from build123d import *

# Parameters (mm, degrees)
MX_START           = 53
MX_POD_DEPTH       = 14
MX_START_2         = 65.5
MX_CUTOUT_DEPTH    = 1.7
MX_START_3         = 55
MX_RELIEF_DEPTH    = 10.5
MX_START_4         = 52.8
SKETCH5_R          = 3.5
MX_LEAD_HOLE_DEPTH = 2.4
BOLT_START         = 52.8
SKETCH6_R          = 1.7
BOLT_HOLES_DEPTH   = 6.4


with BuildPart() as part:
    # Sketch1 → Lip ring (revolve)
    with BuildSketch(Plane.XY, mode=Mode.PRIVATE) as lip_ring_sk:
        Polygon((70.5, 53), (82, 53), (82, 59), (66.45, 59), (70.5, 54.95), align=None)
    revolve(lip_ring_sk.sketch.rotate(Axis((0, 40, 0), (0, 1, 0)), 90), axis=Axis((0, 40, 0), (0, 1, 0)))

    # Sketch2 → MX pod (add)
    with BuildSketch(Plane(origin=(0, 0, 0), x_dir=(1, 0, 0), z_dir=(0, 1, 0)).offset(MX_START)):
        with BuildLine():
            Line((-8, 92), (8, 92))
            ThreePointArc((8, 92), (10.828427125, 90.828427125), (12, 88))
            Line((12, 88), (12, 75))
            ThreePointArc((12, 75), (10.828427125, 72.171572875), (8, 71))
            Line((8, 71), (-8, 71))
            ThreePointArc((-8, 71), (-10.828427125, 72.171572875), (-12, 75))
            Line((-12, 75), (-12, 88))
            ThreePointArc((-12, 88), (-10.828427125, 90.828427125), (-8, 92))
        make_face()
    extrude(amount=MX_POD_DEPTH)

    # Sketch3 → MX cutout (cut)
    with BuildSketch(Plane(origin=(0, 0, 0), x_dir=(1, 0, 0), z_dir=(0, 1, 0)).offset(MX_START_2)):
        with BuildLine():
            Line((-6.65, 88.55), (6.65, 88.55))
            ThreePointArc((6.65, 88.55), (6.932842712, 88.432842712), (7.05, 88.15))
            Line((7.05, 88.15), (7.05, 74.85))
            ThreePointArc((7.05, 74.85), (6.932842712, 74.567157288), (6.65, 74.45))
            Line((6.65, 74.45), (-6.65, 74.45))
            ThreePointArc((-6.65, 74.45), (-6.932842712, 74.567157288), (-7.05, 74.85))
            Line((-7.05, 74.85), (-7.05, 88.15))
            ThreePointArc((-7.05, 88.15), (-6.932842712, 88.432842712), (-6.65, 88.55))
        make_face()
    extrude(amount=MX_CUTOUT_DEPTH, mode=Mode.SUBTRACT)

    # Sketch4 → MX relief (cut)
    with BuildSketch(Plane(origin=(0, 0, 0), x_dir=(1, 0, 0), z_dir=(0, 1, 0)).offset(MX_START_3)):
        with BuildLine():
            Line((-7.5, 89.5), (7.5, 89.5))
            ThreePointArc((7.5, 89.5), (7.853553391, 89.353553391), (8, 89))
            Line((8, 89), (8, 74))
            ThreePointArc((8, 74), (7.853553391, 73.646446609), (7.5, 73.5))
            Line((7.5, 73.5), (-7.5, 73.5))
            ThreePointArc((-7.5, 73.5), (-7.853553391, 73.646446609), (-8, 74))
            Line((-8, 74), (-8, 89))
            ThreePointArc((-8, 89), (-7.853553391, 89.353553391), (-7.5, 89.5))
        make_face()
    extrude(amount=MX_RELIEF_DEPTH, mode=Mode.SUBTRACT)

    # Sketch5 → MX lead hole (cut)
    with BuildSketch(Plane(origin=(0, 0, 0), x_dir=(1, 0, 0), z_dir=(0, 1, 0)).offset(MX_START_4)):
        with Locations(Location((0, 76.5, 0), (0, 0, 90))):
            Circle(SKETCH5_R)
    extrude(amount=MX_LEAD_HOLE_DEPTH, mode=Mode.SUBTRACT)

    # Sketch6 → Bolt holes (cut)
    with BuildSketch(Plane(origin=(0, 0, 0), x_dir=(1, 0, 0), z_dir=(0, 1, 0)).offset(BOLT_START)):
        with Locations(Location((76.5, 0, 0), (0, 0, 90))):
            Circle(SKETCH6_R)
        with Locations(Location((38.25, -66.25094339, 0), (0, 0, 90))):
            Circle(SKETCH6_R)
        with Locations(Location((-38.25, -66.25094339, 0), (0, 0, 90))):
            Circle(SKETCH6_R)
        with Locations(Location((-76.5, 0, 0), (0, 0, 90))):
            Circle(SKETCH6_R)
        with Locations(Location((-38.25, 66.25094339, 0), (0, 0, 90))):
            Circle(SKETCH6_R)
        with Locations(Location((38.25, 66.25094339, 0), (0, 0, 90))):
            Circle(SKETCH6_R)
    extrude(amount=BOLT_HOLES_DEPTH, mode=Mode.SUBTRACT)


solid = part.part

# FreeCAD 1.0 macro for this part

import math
import FreeCAD as App
import Part
import Sketcher

V = App.Vector
Q = App.Units.Quantity


def add_polygon(sketch, points):
    """Adds a closed chain of lines whose ends are joined by coincident constraints."""
    first, n = sketch.GeometryCount, len(points)
    for a, b in zip(points, points[1:] + points[:1]):
        sketch.addGeometry(Part.LineSegment(App.Vector(*a, 0), App.Vector(*b, 0)), False)
    for i in range(n):
        sketch.addConstraint(Sketcher.Constraint("Coincident", first + i, 2, first + (i + 1) % n, 1))

doc = App.newDocument("Part")
body = doc.addObject("PartDesign::Body", "Body")

sketch1 = body.newObject("Sketcher::SketchObject", "Sketch")
sketch1.AttachmentSupport = (doc.getObject("XY_Plane"), [""])
sketch1.MapMode = "FlatFace"
add_polygon(sketch1, [(70.5, 53), (82, 53), (82, 59), (66.45, 59), (70.5, 54.95)])
sketch1.addConstraint(Sketcher.Constraint("Horizontal", 0))
sketch1.addConstraint(Sketcher.Constraint("Vertical", 1))
sketch1.addConstraint(Sketcher.Constraint("Horizontal", 2))
sketch1.addConstraint(Sketcher.Constraint("Vertical", 4))
sketch1.addConstraint(Sketcher.Constraint("DistanceY", 1, 1, 1, 2, 6.0))
sketch1.addConstraint(Sketcher.Constraint("Angle", 3, Q("-45 deg")))
sketch1.addConstraint(Sketcher.Constraint("DistanceX", 0, 1, 0, 2, 11.5))
sketch1.addConstraint(Sketcher.Constraint("DistanceX", -1, 1, 0, 2, 82.0))
sketch1.addConstraint(Sketcher.Constraint("DistanceY", -1, 1, 0, 2, 53.0))
sketch1.addConstraint(Sketcher.Constraint("DistanceX", 2, 2, 2, 1, 15.55))
revolution = body.newObject("PartDesign::Revolution", "Revolution")
revolution.Profile = sketch1
revolution.ReferenceAxis = (sketch1, ["V_Axis"])
revolution.Angle = 360

sketch2 = body.newObject("Sketcher::SketchObject", "Sketch001")
sketch2.AttachmentSupport = (doc.getObject("XZ_Plane"), [""])
sketch2.MapMode = "FlatFace"
sketch2.AttachmentOffset = App.Placement(V(0, 0, -53), App.Rotation())
sketch2.addGeometry(Part.LineSegment(V(8, -92, 0), V(-8, -92, 0)), False)
sketch2.addGeometry(Part.ArcOfCircle(Part.Circle(V(-8, -88, 0), V(0, 0, 1), 4), math.radians(180), math.radians(270)), False)
sketch2.addGeometry(Part.LineSegment(V(-12, -88, 0), V(-12, -75, 0)), False)
sketch2.addGeometry(Part.ArcOfCircle(Part.Circle(V(-8, -75, 0), V(0, 0, 1), 4), math.radians(90), math.radians(180)), False)
sketch2.addGeometry(Part.LineSegment(V(-8, -71, 0), V(8, -71, 0)), False)
sketch2.addGeometry(Part.ArcOfCircle(Part.Circle(V(8, -75, 0), V(0, 0, 1), 4), math.radians(0), math.radians(90)), False)
sketch2.addGeometry(Part.LineSegment(V(12, -75, 0), V(12, -88, 0)), False)
sketch2.addGeometry(Part.ArcOfCircle(Part.Circle(V(8, -88, 0), V(0, 0, 1), 4), math.radians(-90), math.radians(0)), False)
sketch2.addConstraint(Sketcher.Constraint("Tangent", 0, 2, 1, 2))
sketch2.addConstraint(Sketcher.Constraint("Tangent", 1, 1, 2, 1))
sketch2.addConstraint(Sketcher.Constraint("Tangent", 2, 2, 3, 2))
sketch2.addConstraint(Sketcher.Constraint("Tangent", 3, 1, 4, 1))
sketch2.addConstraint(Sketcher.Constraint("Tangent", 4, 2, 5, 2))
sketch2.addConstraint(Sketcher.Constraint("Tangent", 5, 1, 6, 1))
sketch2.addConstraint(Sketcher.Constraint("Tangent", 6, 2, 7, 2))
sketch2.addConstraint(Sketcher.Constraint("Tangent", 7, 1, 0, 1))
sketch2.addConstraint(Sketcher.Constraint("Horizontal", 0))
sketch2.addConstraint(Sketcher.Constraint("Vertical", 2))
sketch2.addConstraint(Sketcher.Constraint("Horizontal", 4))
sketch2.addConstraint(Sketcher.Constraint("Vertical", 6))
sketch2.addConstraint(Sketcher.Constraint("Equal", 1, 3))
sketch2.addConstraint(Sketcher.Constraint("Equal", 3, 5))
sketch2.addConstraint(Sketcher.Constraint("Equal", 5, 7))
sketch2.addConstraint(Sketcher.Constraint("Radius", 1, 4.0))
sketch2.addConstraint(Sketcher.Constraint("DistanceX", 0, 2, 0, 1, 16.0))
sketch2.addConstraint(Sketcher.Constraint("DistanceY", 2, 1, 2, 2, 13.0))
sketch2.addConstraint(Sketcher.Constraint("DistanceX", 1, 3, -1, 1, 8.0))
sketch2.addConstraint(Sketcher.Constraint("DistanceY", 1, 3, -1, 1, 88.0))
pad1 = body.newObject("PartDesign::Pad", "Pad")
pad1.Profile = sketch2
pad1.Length = 14
pad1.Reversed = True

sketch3 = body.newObject("Sketcher::SketchObject", "Sketch002")
sketch3.AttachmentSupport = (doc.getObject("XZ_Plane"), [""])
sketch3.MapMode = "FlatFace"
sketch3.AttachmentOffset = App.Placement(V(0, 0, -65.5), App.Rotation())
sketch3.addGeometry(Part.LineSegment(V(6.65, -88.55, 0), V(-6.65, -88.55, 0)), False)
sketch3.addGeometry(Part.ArcOfCircle(Part.Circle(V(-6.65, -88.15, 0), V(0, 0, 1), 0.4), math.radians(-180), math.radians(-90)), False)
sketch3.addGeometry(Part.LineSegment(V(-7.05, -88.15, 0), V(-7.05, -74.85, 0)), False)
sketch3.addGeometry(Part.ArcOfCircle(Part.Circle(V(-6.65, -74.85, 0), V(0, 0, 1), 0.4), math.radians(90), math.radians(180)), False)
sketch3.addGeometry(Part.LineSegment(V(-6.65, -74.45, 0), V(6.65, -74.45, 0)), False)
sketch3.addGeometry(Part.ArcOfCircle(Part.Circle(V(6.65, -74.85, 0), V(0, 0, 1), 0.4), math.radians(0), math.radians(90)), False)
sketch3.addGeometry(Part.LineSegment(V(7.05, -74.85, 0), V(7.05, -88.15, 0)), False)
sketch3.addGeometry(Part.ArcOfCircle(Part.Circle(V(6.65, -88.15, 0), V(0, 0, 1), 0.4), math.radians(-90), math.radians(0)), False)
sketch3.addConstraint(Sketcher.Constraint("Tangent", 0, 2, 1, 2))
sketch3.addConstraint(Sketcher.Constraint("Tangent", 1, 1, 2, 1))
sketch3.addConstraint(Sketcher.Constraint("Tangent", 2, 2, 3, 2))
sketch3.addConstraint(Sketcher.Constraint("Tangent", 3, 1, 4, 1))
sketch3.addConstraint(Sketcher.Constraint("Tangent", 4, 2, 5, 2))
sketch3.addConstraint(Sketcher.Constraint("Tangent", 5, 1, 6, 1))
sketch3.addConstraint(Sketcher.Constraint("Tangent", 6, 2, 7, 2))
sketch3.addConstraint(Sketcher.Constraint("Tangent", 7, 1, 0, 1))
sketch3.addConstraint(Sketcher.Constraint("Horizontal", 0))
sketch3.addConstraint(Sketcher.Constraint("Vertical", 2))
sketch3.addConstraint(Sketcher.Constraint("Horizontal", 4))
sketch3.addConstraint(Sketcher.Constraint("Vertical", 6))
sketch3.addConstraint(Sketcher.Constraint("Equal", 1, 3))
sketch3.addConstraint(Sketcher.Constraint("Equal", 3, 5))
sketch3.addConstraint(Sketcher.Constraint("Equal", 5, 7))
sketch3.addConstraint(Sketcher.Constraint("Equal", 4, 2))
sketch3.addConstraint(Sketcher.Constraint("Radius", 1, 0.4))
sketch3.addConstraint(Sketcher.Constraint("DistanceX", 0, 2, 0, 1, 13.3))
sketch3.addConstraint(Sketcher.Constraint("DistanceX", 1, 3, -1, 1, 6.65))
sketch3.addConstraint(Sketcher.Constraint("DistanceY", 1, 3, -1, 1, 88.15))
pocket1 = body.newObject("PartDesign::Pocket", "Pocket")
pocket1.Profile = sketch3
pocket1.Length = 1.7

sketch4 = body.newObject("Sketcher::SketchObject", "Sketch003")
sketch4.AttachmentSupport = (doc.getObject("XZ_Plane"), [""])
sketch4.MapMode = "FlatFace"
sketch4.AttachmentOffset = App.Placement(V(0, 0, -55), App.Rotation())
sketch4.addGeometry(Part.LineSegment(V(7.5, -89.5, 0), V(-7.5, -89.5, 0)), False)
sketch4.addGeometry(Part.ArcOfCircle(Part.Circle(V(-7.5, -89, 0), V(0, 0, 1), 0.5), math.radians(180), math.radians(270)), False)
sketch4.addGeometry(Part.LineSegment(V(-8, -89, 0), V(-8, -74, 0)), False)
sketch4.addGeometry(Part.ArcOfCircle(Part.Circle(V(-7.5, -74, 0), V(0, 0, 1), 0.5), math.radians(90), math.radians(180)), False)
sketch4.addGeometry(Part.LineSegment(V(-7.5, -73.5, 0), V(7.5, -73.5, 0)), False)
sketch4.addGeometry(Part.ArcOfCircle(Part.Circle(V(7.5, -74, 0), V(0, 0, 1), 0.5), math.radians(0), math.radians(90)), False)
sketch4.addGeometry(Part.LineSegment(V(8, -74, 0), V(8, -89, 0)), False)
sketch4.addGeometry(Part.ArcOfCircle(Part.Circle(V(7.5, -89, 0), V(0, 0, 1), 0.5), math.radians(-90), math.radians(0)), False)
sketch4.addConstraint(Sketcher.Constraint("Tangent", 0, 2, 1, 2))
sketch4.addConstraint(Sketcher.Constraint("Tangent", 1, 1, 2, 1))
sketch4.addConstraint(Sketcher.Constraint("Tangent", 2, 2, 3, 2))
sketch4.addConstraint(Sketcher.Constraint("Tangent", 3, 1, 4, 1))
sketch4.addConstraint(Sketcher.Constraint("Tangent", 4, 2, 5, 2))
sketch4.addConstraint(Sketcher.Constraint("Tangent", 5, 1, 6, 1))
sketch4.addConstraint(Sketcher.Constraint("Tangent", 6, 2, 7, 2))
sketch4.addConstraint(Sketcher.Constraint("Tangent", 7, 1, 0, 1))
sketch4.addConstraint(Sketcher.Constraint("Horizontal", 0))
sketch4.addConstraint(Sketcher.Constraint("Vertical", 2))
sketch4.addConstraint(Sketcher.Constraint("Horizontal", 4))
sketch4.addConstraint(Sketcher.Constraint("Vertical", 6))
sketch4.addConstraint(Sketcher.Constraint("Equal", 1, 3))
sketch4.addConstraint(Sketcher.Constraint("Equal", 3, 5))
sketch4.addConstraint(Sketcher.Constraint("Equal", 5, 7))
sketch4.addConstraint(Sketcher.Constraint("Equal", 4, 2))
sketch4.addConstraint(Sketcher.Constraint("Radius", 1, 0.5))
sketch4.addConstraint(Sketcher.Constraint("DistanceX", 0, 2, 0, 1, 15.0))
sketch4.addConstraint(Sketcher.Constraint("DistanceY", 1, 3, -1, 1, 89.0))
sketch4.addConstraint(Sketcher.Constraint("DistanceX", 1, 1, -1, 1, 8.0))
pocket2 = body.newObject("PartDesign::Pocket", "Pocket001")
pocket2.Profile = sketch4
pocket2.Length = 10.5

sketch5 = body.newObject("Sketcher::SketchObject", "Sketch004")
sketch5.AttachmentSupport = (doc.getObject("XZ_Plane"), [""])
sketch5.MapMode = "FlatFace"
sketch5.AttachmentOffset = App.Placement(V(0, 0, -52.8), App.Rotation())
sketch5.addGeometry(Part.Circle(V(0, -76.5, 0), V(0, 0, 1), 3.5), False)
sketch5.addConstraint(Sketcher.Constraint("PointOnObject", 0, 3, -2))
sketch5.addConstraint(Sketcher.Constraint("Diameter", 0, 7.0))
sketch5.addConstraint(Sketcher.Constraint("DistanceY", 0, 3, -1, 1, 76.5))
pocket3 = body.newObject("PartDesign::Pocket", "Pocket002")
pocket3.Profile = sketch5
pocket3.Length = 2.4

sketch6 = body.newObject("Sketcher::SketchObject", "Sketch005")
sketch6.AttachmentSupport = (doc.getObject("XZ_Plane"), [""])
sketch6.MapMode = "FlatFace"
sketch6.AttachmentOffset = App.Placement(V(0, 0, -52.8), App.Rotation())
sketch6.addGeometry(Part.Circle(V(76.5, 0, 0), V(0, 0, 1), 1.7), False)
sketch6.addGeometry(Part.Circle(V(38.25, 66.250943, 0), V(0, 0, 1), 1.7), False)
sketch6.addGeometry(Part.Circle(V(-38.25, 66.250943, 0), V(0, 0, 1), 1.7), False)
sketch6.addGeometry(Part.Circle(V(-76.5, 0, 0), V(0, 0, 1), 1.7), False)
sketch6.addGeometry(Part.Circle(V(-38.25, -66.250943, 0), V(0, 0, 1), 1.7), False)
sketch6.addGeometry(Part.Circle(V(38.25, -66.250943, 0), V(0, 0, 1), 1.7), False)
sketch6.addConstraint(Sketcher.Constraint("Equal", 0, 1))
sketch6.addConstraint(Sketcher.Constraint("Equal", 1, 2))
sketch6.addConstraint(Sketcher.Constraint("Equal", 2, 3))
sketch6.addConstraint(Sketcher.Constraint("Equal", 3, 4))
sketch6.addConstraint(Sketcher.Constraint("Equal", 4, 5))
sketch6.addConstraint(Sketcher.Constraint("Symmetric", 0, 3, 3, 3, -1, 1))
sketch6.addConstraint(Sketcher.Constraint("Symmetric", 1, 3, 4, 3, -1, 1))
sketch6.addConstraint(Sketcher.Constraint("Symmetric", 2, 3, 5, 3, -1, 1))
sketch6.addConstraint(Sketcher.Constraint("Symmetric", 1, 3, 2, 3, -2))
sketch6.addConstraint(Sketcher.Constraint("PointOnObject", 0, 3, -1))
sketch6.addConstraint(Sketcher.Constraint("Diameter", 0, 3.4))
sketch6.addConstraint(Sketcher.Constraint("DistanceX", 3, 3, 0, 3, 153.0))
sketch6.addConstraint(Sketcher.Constraint("DistanceX", 2, 3, 1, 3, 76.5))
sketch6.addConstraint(Sketcher.Constraint("DistanceY", -1, 1, 1, 3, 66.250943))
pocket4 = body.newObject("PartDesign::Pocket", "Pocket003")
pocket4.Profile = sketch6
pocket4.Length = 6.4

doc.recompute()
